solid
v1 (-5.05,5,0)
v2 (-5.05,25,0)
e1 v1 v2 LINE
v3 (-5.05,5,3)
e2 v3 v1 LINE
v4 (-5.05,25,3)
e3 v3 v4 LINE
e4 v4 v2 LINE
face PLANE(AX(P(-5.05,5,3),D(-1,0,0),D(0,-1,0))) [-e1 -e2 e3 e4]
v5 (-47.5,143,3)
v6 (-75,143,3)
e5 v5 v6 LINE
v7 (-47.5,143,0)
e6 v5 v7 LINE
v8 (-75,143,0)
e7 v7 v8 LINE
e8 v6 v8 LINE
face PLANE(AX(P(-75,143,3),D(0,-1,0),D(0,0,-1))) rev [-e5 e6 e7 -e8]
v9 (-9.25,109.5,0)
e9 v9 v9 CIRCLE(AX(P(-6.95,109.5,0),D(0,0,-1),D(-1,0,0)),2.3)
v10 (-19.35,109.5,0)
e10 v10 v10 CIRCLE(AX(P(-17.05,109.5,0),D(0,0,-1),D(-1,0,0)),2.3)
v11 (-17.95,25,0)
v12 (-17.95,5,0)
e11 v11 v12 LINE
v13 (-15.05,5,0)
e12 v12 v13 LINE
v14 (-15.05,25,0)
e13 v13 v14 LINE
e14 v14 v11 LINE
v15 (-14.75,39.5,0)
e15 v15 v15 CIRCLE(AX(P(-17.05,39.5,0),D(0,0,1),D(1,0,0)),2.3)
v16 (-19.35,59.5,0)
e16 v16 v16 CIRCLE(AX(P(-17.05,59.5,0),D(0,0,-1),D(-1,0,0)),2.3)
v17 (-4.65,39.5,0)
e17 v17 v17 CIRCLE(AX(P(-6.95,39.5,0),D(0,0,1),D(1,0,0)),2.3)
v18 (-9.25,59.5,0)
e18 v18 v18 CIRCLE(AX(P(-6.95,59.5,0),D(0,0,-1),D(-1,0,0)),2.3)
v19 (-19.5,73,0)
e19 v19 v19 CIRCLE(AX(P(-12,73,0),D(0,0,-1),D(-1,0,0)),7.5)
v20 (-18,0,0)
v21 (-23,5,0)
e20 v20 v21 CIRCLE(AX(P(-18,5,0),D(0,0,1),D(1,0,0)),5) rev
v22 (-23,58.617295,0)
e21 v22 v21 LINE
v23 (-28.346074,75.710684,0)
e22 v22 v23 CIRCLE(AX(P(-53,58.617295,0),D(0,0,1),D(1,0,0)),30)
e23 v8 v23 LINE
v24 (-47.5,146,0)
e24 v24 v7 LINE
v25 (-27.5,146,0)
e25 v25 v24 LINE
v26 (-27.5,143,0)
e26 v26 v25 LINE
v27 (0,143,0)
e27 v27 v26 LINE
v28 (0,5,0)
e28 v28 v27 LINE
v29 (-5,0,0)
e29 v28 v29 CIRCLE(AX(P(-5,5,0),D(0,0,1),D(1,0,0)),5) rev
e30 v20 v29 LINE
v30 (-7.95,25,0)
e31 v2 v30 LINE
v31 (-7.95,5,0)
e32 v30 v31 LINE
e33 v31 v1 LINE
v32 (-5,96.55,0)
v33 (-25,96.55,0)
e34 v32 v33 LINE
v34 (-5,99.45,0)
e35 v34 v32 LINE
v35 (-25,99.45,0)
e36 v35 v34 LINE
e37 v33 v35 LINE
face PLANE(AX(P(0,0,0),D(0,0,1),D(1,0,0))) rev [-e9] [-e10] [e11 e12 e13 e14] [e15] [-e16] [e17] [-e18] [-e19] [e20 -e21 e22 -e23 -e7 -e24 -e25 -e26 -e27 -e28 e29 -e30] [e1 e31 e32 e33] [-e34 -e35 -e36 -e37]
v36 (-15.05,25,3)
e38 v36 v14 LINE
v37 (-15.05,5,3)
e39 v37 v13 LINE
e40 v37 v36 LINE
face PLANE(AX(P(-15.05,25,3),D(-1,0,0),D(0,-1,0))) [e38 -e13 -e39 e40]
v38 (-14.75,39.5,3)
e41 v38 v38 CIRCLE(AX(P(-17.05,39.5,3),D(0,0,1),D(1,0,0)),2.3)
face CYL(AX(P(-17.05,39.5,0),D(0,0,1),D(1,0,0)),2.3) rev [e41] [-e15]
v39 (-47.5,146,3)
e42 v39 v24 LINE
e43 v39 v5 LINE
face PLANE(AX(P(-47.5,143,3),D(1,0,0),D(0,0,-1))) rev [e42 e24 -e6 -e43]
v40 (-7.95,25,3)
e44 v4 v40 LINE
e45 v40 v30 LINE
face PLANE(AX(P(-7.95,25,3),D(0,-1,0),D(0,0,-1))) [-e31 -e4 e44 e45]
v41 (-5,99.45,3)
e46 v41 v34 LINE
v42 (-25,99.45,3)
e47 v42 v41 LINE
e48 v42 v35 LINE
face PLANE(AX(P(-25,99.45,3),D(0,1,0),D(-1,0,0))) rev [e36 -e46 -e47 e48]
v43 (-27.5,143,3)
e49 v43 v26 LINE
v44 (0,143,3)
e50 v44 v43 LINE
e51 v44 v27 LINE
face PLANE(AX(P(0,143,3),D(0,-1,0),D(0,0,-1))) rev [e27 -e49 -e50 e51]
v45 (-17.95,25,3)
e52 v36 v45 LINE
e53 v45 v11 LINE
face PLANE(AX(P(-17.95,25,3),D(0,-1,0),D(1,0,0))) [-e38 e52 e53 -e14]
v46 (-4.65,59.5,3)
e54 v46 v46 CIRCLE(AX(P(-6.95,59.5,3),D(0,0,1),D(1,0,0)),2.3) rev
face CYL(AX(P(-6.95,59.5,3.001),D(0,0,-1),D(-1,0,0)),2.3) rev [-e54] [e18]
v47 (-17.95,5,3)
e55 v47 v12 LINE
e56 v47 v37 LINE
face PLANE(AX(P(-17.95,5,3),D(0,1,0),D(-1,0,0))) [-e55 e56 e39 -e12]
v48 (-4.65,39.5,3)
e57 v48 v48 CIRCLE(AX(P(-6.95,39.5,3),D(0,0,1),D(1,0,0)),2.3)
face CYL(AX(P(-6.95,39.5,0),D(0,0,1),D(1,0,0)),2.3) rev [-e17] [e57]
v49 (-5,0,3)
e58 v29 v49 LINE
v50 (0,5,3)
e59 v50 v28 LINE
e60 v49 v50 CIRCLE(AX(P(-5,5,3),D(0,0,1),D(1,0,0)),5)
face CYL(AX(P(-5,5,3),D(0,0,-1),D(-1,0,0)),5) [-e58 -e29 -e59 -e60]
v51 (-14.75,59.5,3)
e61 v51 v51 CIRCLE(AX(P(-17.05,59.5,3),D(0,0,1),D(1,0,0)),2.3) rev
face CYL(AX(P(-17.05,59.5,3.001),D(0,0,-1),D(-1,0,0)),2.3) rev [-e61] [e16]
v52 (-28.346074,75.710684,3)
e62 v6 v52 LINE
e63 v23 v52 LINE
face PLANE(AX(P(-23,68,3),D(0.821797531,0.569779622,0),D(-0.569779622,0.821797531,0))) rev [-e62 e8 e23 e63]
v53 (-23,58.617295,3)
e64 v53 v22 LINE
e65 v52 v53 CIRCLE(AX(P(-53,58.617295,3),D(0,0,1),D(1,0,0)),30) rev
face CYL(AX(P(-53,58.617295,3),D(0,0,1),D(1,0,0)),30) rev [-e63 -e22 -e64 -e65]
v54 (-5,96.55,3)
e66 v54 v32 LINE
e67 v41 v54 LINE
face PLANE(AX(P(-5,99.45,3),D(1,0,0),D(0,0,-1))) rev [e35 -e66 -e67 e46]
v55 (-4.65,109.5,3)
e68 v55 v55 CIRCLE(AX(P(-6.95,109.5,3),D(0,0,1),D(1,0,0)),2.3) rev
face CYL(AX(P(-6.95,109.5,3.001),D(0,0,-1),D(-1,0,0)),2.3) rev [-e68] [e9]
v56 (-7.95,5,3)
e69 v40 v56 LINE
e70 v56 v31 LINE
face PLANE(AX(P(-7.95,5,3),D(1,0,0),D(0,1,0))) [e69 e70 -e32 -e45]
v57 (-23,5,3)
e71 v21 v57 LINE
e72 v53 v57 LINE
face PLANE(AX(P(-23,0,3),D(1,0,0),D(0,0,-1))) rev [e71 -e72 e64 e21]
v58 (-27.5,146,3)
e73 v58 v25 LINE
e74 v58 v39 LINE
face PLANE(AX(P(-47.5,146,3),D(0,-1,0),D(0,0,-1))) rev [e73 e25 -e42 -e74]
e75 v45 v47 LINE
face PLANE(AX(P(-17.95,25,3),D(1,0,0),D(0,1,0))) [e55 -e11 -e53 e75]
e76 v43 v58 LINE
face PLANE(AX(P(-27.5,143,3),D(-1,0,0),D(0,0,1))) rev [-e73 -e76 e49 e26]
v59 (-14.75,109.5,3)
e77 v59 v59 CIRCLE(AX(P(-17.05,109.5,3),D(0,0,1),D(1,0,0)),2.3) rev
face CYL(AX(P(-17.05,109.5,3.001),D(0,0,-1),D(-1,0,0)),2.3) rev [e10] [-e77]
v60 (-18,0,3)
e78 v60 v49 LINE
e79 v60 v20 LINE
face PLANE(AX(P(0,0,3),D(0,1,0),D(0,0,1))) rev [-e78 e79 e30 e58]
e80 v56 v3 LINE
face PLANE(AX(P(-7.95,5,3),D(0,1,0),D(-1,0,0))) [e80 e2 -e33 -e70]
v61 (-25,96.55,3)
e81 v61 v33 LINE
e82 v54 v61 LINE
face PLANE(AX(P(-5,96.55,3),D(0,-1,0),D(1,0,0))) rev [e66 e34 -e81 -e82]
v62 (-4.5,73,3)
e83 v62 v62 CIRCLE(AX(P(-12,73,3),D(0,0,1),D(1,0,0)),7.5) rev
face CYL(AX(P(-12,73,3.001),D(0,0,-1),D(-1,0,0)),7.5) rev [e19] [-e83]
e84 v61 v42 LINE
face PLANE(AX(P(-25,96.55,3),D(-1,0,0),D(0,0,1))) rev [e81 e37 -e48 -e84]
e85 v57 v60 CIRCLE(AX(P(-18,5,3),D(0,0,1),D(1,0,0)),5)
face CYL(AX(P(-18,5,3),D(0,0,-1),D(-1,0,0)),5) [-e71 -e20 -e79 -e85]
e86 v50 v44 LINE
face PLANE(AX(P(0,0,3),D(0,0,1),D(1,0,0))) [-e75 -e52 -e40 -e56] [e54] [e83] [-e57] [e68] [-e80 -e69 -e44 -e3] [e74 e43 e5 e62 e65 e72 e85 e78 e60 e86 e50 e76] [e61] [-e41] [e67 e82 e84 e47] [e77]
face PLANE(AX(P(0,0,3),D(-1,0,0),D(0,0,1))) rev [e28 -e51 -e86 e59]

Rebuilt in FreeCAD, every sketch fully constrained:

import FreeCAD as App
import Part
import Sketcher

V = App.Vector


def edges_at(feature, points):
    """Names of the edges that pass closest to the given points."""
    edges = feature.Shape.Edges
    near = lambda p: min(range(len(edges)), key=lambda i: edges[i].distToShape(Part.Vertex(*p))[0])
    return sorted({f"Edge{near(p) + 1}" for p in points})

doc = App.newDocument("Part")
params = doc.addObject("Spreadsheet::Sheet", "Params")
for row, (alias, value) in enumerate([
    ("sketch1_width", "23 mm"),
    ("sketch1_width2", "20 mm"),
    ("sketch1_height", "143 mm"),
    ("sketch1_height2", "3 mm"),
    ("sketch1_height3", "68 mm"),
    ("pad1_length", "3 mm"),
    ("fillet_radius", "5 mm"),
    ("fillet2_radius", "30 mm"),
    ("sketch2_diameter", "15 mm"),
    ("sketch3_diameter", "4.6 mm"),
    ("sketch4_diameter", "4.6 mm"),
    ("sketch5_diameter", "4.6 mm"),
    ("sketch6_diameter", "4.6 mm"),
    ("sketch7_width", "20 mm"),
    ("sketch7_height", "2.9 mm"),
    ("pocket6_length", "3 mm"),
    ("sketch8_diameter", "4.6 mm"),
    ("pocket7_length", "3 mm"),
], start=1):
    params.set(f"A{row}", alias)
    params.set(f"B{row}", "=" + value)
    params.setAlias(f"B{row}", alias)

body = doc.addObject("PartDesign::Body", "Body")

# Sketch on XY plane
sketch1 = body.newObject("Sketcher::SketchObject", "Sketch")
sketch1.AttachmentSupport = (doc.getObject("XY_Plane"), [""])
sketch1.MapMode = "FlatFace"
sketch1.addGeometry([
    Part.LineSegment(V(-23, 0, 0), V(0, 0, 0)),  # 0
    Part.LineSegment(V(0, 0, 0), V(0, 143, 0)),  # 1
    Part.LineSegment(V(0, 143, 0), V(-27.5, 143, 0)),  # 2
    Part.LineSegment(V(-27.5, 143, 0), V(-27.5, 146, 0)),  # 3
    Part.LineSegment(V(-27.5, 146, 0), V(-47.5, 146, 0)),  # 4
    Part.LineSegment(V(-47.5, 146, 0), V(-47.5, 143, 0)),  # 5
    Part.LineSegment(V(-47.5, 143, 0), V(-75, 143, 0)),  # 6
    Part.LineSegment(V(-75, 143, 0), V(-23, 68, 0)),  # 7
    Part.LineSegment(V(-23, 68, 0), V(-23, 0, 0)),  # 8
    Part.LineSegment(V(-8, 5, 0), V(-8, 25, 0)),  # 9
    Part.LineSegment(V(-8, 25, 0), V(-5, 25, 0)),  # 10
    Part.LineSegment(V(-5, 25, 0), V(-5, 5, 0)),  # 11
    Part.LineSegment(V(-5, 5, 0), V(-8, 5, 0)),  # 12
    Part.LineSegment(V(-17.9, 5, 0), V(-17.9, 25, 0)),  # 13
    Part.LineSegment(V(-17.9, 25, 0), V(-15.1, 25, 0)),  # 14
    Part.LineSegment(V(-15.1, 25, 0), V(-15.1, 5, 0)),  # 15
    Part.LineSegment(V(-15.1, 5, 0), V(-17.9, 5, 0)),  # 16
], False)
sketch1.addConstraint([
    Sketcher.Constraint("Coincident", 0, 2, 1, 1),
    Sketcher.Constraint("Coincident", 1, 2, 2, 1),
    Sketcher.Constraint("Coincident", 2, 2, 3, 1),
    Sketcher.Constraint("Coincident", 3, 2, 4, 1),
    Sketcher.Constraint("Coincident", 4, 2, 5, 1),
    Sketcher.Constraint("Coincident", 5, 2, 6, 1),
    Sketcher.Constraint("Coincident", 6, 2, 7, 1),
    Sketcher.Constraint("Coincident", 7, 2, 8, 1),
    Sketcher.Constraint("Coincident", 8, 2, 0, 1),
    Sketcher.Constraint("Coincident", 9, 2, 10, 1),
    Sketcher.Constraint("Coincident", 10, 2, 11, 1),
    Sketcher.Constraint("Coincident", 11, 2, 12, 1),
    Sketcher.Constraint("Coincident", 12, 2, 9, 1),
    Sketcher.Constraint("Coincident", 13, 2, 14, 1),
    Sketcher.Constraint("Coincident", 14, 2, 15, 1),
    Sketcher.Constraint("Coincident", 15, 2, 16, 1),
    Sketcher.Constraint("Coincident", 16, 2, 13, 1),
    Sketcher.Constraint("Horizontal", 0),
    Sketcher.Constraint("Vertical", 1),
    Sketcher.Constraint("Horizontal", 2),
    Sketcher.Constraint("Vertical", 3),
    Sketcher.Constraint("Horizontal", 4),
    Sketcher.Constraint("Vertical", 5),
    Sketcher.Constraint("Horizontal", 6),
    Sketcher.Constraint("Vertical", 8),
    Sketcher.Constraint("Vertical", 9),
    Sketcher.Constraint("Horizontal", 10),
    Sketcher.Constraint("Vertical", 11),
    Sketcher.Constraint("Horizontal", 12),
    Sketcher.Constraint("Vertical", 13),
    Sketcher.Constraint("Horizontal", 14),
    Sketcher.Constraint("Vertical", 15),
    Sketcher.Constraint("Horizontal", 16),
    Sketcher.Constraint("Coincident", 0, 2, -1, 1),
    Sketcher.Constraint("Horizontal", 2, 2, 5, 2),
    Sketcher.Constraint("Horizontal", 10, 2, 13, 2),
    Sketcher.Constraint("Horizontal", 12, 2, 15, 2),
    Sketcher.Constraint("Equal", 2, 6),
    Sketcher.Constraint("Equal", 12, 14),
    Sketcher.Constraint("Equal", 4, 9),
    Sketcher.Constraint("DistanceX", 0, 1, 0, 2, 23.0),
    Sketcher.Constraint("DistanceX", 4, 2, 4, 1, 20.0),
    Sketcher.Constraint("DistanceY", 1, 1, 1, 2, 143.0),
    Sketcher.Constraint("DistanceY", 3, 1, 3, 2, 3.0),
    Sketcher.Constraint("DistanceY", 8, 2, 8, 1, 68.0),
    Sketcher.Constraint("DistanceX", 2, 2, 2, 1, 27.5),
    Sketcher.Constraint("DistanceX", 10, 1, 10, 2, 2.9),
    Sketcher.Constraint("DistanceY", -1, 1, 9, 2, 25.0),
    Sketcher.Constraint("DistanceX", 13, 2, 9, 2, 10.0),
    Sketcher.Constraint("DistanceX", 9, 2, -1, 1, 7.95),
])
sketch1.setExpression("Constraints[40]", "Params.sketch1_width")
sketch1.setExpression("Constraints[41]", "Params.sketch1_width2")
sketch1.setExpression("Constraints[42]", "Params.sketch1_height")
sketch1.setExpression("Constraints[43]", "Params.sketch1_height2")
sketch1.setExpression("Constraints[44]", "Params.sketch1_height3")
pad1 = body.newObject("PartDesign::Pad", "Pad")
pad1.Profile = sketch1
pad1.setExpression("Length", "Params.pad1_length")
doc.recompute()

fillet = body.newObject("PartDesign::Fillet", "Fillet")
fillet.Base = (pad1, edges_at(pad1, [(0, 0, 1.5), (-23, 0, 1.5)]))
fillet.setExpression("Radius", "Params.fillet_radius")
doc.recompute()

fillet2 = body.newObject("PartDesign::Fillet", "Fillet001")
fillet2.Base = (fillet, edges_at(fillet, [(-23, 68, 1.5)]))
fillet2.setExpression("Radius", "Params.fillet2_radius")

# Sketch on XY plane
sketch2 = body.newObject("Sketcher::SketchObject", "Sketch001")
sketch2.AttachmentSupport = (doc.getObject("XY_Plane"), [""])
sketch2.MapMode = "FlatFace"
sketch2.addGeometry(Part.Circle(V(-12, 73, 0), V(0, 0, 1), 8), False)
sketch2.addConstraint([
    Sketcher.Constraint("Diameter", 0, 15.0),
    Sketcher.Constraint("DistanceX", 0, 3, -1, 1, 12.0),
    Sketcher.Constraint("DistanceY", -1, 1, 0, 3, 73.0),
])
sketch2.setExpression("Constraints[0]", "Params.sketch2_diameter")
pocket1 = body.newObject("PartDesign::Pocket", "Pocket")
pocket1.Profile = sketch2
pocket1.Type = "UpToFirst"
pocket1.Reversed = True

# Sketch on XY plane
sketch3 = body.newObject("Sketcher::SketchObject", "Sketch002")
sketch3.AttachmentSupport = (doc.getObject("XY_Plane"), [""])
sketch3.MapMode = "FlatFace"
sketch3.addGeometry(Part.Circle(V(-17.1, 59.5, 0), V(0, 0, 1), 2.3), False)
sketch3.addConstraint([
    Sketcher.Constraint("Diameter", 0, 4.6),
    Sketcher.Constraint("DistanceY", -1, 1, 0, 3, 59.5),
    Sketcher.Constraint("DistanceX", 0, 3, -1, 1, 17.05),
])
sketch3.setExpression("Constraints[0]", "Params.sketch3_diameter")
pocket2 = body.newObject("PartDesign::Pocket", "Pocket001")
pocket2.Profile = sketch3
pocket2.Type = "UpToFirst"
pocket2.Reversed = True

# Sketch on XY plane
sketch4 = body.newObject("Sketcher::SketchObject", "Sketch003")
sketch4.AttachmentSupport = (doc.getObject("XY_Plane"), [""])
sketch4.MapMode = "FlatFace"
sketch4.addGeometry(Part.Circle(V(-7, 59.5, 0), V(0, 0, 1), 2.3), False)
sketch4.addConstraint([
    Sketcher.Constraint("Diameter", 0, 4.6),
    Sketcher.Constraint("DistanceY", -1, 1, 0, 3, 59.5),
    Sketcher.Constraint("DistanceX", 0, 3, -1, 1, 6.95),
])
sketch4.setExpression("Constraints[0]", "Params.sketch4_diameter")
pocket3 = body.newObject("PartDesign::Pocket", "Pocket002")
pocket3.Profile = sketch4
pocket3.Type = "UpToFirst"
pocket3.Reversed = True

# Sketch on XY plane
sketch5 = body.newObject("Sketcher::SketchObject", "Sketch004")
sketch5.AttachmentSupport = (doc.getObject("XY_Plane"), [""])
sketch5.MapMode = "FlatFace"
sketch5.addGeometry(Part.Circle(V(-17.1, 109.5, 0), V(0, 0, 1), 2.3), False)
sketch5.addConstraint([
    Sketcher.Constraint("Diameter", 0, 4.6),
    Sketcher.Constraint("DistanceY", -1, 1, 0, 3, 109.5),
    Sketcher.Constraint("DistanceX", 0, 3, -1, 1, 17.05),
])
sketch5.setExpression("Constraints[0]", "Params.sketch5_diameter")
pocket4 = body.newObject("PartDesign::Pocket", "Pocket003")
pocket4.Profile = sketch5
pocket4.Type = "UpToFirst"
pocket4.Reversed = True

# Sketch on XY plane
sketch6 = body.newObject("Sketcher::SketchObject", "Sketch005")
sketch6.AttachmentSupport = (doc.getObject("XY_Plane"), [""])
sketch6.MapMode = "FlatFace"
sketch6.addGeometry(Part.Circle(V(-7, 109.5, 0), V(0, 0, 1), 2.3), False)
sketch6.addConstraint([
    Sketcher.Constraint("Diameter", 0, 4.6),
    Sketcher.Constraint("DistanceY", -1, 1, 0, 3, 109.5),
    Sketcher.Constraint("DistanceX", 0, 3, -1, 1, 6.95),
])
sketch6.setExpression("Constraints[0]", "Params.sketch6_diameter")
pocket5 = body.newObject("PartDesign::Pocket", "Pocket004")
pocket5.Profile = sketch6
pocket5.Type = "UpToFirst"
pocket5.Reversed = True

# Sketch on XY plane
sketch7 = body.newObject("Sketcher::SketchObject", "Sketch006")
sketch7.AttachmentSupport = (doc.getObject("XY_Plane"), [""])
sketch7.MapMode = "FlatFace"
sketch7.addGeometry([
    Part.LineSegment(V(-5, 99.5, 0), V(-5, 96.5, 0)),
    Part.LineSegment(V(-5, 96.5, 0), V(-25, 96.5, 0)),
    Part.LineSegment(V(-25, 96.5, 0), V(-25, 99.5, 0)),
    Part.LineSegment(V(-25, 99.5, 0), V(-5, 99.5, 0)),
], False)
sketch7.addConstraint([
    Sketcher.Constraint("Coincident", 0, 2, 1, 1),
    Sketcher.Constraint("Coincident", 1, 2, 2, 1),
    Sketcher.Constraint("Coincident", 2, 2, 3, 1),
    Sketcher.Constraint("Coincident", 3, 2, 0, 1),
    Sketcher.Constraint("Vertical", 0),
    Sketcher.Constraint("Horizontal", 1),
    Sketcher.Constraint("Vertical", 2),
    Sketcher.Constraint("Horizontal", 3),
    Sketcher.Constraint("DistanceX", 1, 2, 1, 1, 20.0),
    Sketcher.Constraint("DistanceY", 0, 2, 0, 1, 2.9),
    Sketcher.Constraint("DistanceX", 0, 2, -1, 1, 5.0),
    Sketcher.Constraint("DistanceY", -1, 1, 0, 2, 96.55),
])
sketch7.setExpression("Constraints[8]", "Params.sketch7_width")
sketch7.setExpression("Constraints[9]", "Params.sketch7_height")
pocket6 = body.newObject("PartDesign::Pocket", "Pocket005")
pocket6.Profile = sketch7
pocket6.setExpression("Length", "Params.pocket6_length")
pocket6.Reversed = True

# Sketch on XY plane
sketch8 = body.newObject("Sketcher::SketchObject", "Sketch007")
sketch8.AttachmentSupport = (doc.getObject("XY_Plane"), [""])
sketch8.MapMode = "FlatFace"
sketch8.AttachmentOffset = App.Placement(V(0, 0, 3), App.Rotation())
sketch8.addGeometry([
    Part.Circle(V(-17.1, 39.5, 0), V(0, 0, 1), 2.3),
    Part.Circle(V(-7, 39.5, 0), V(0, 0, 1), 2.3),
], False)
sketch8.addConstraint([
    Sketcher.Constraint("Equal", 0, 1),
    Sketcher.Constraint("Horizontal", 0, 3, 1, 3),
    Sketcher.Constraint("Diameter", 0, 4.6),
    Sketcher.Constraint("DistanceY", -1, 1, 0, 3, 39.5),
    Sketcher.Constraint("DistanceX", 0, 3, 1, 3, 10.1),
    Sketcher.Constraint("DistanceX", 0, 3, -1, 1, 17.05),
])
sketch8.setExpression("Constraints[2]", "Params.sketch8_diameter")
pocket7 = body.newObject("PartDesign::Pocket", "Pocket006")
pocket7.Profile = sketch8
pocket7.setExpression("Length", "Params.pocket7_length")

doc.recompute()
